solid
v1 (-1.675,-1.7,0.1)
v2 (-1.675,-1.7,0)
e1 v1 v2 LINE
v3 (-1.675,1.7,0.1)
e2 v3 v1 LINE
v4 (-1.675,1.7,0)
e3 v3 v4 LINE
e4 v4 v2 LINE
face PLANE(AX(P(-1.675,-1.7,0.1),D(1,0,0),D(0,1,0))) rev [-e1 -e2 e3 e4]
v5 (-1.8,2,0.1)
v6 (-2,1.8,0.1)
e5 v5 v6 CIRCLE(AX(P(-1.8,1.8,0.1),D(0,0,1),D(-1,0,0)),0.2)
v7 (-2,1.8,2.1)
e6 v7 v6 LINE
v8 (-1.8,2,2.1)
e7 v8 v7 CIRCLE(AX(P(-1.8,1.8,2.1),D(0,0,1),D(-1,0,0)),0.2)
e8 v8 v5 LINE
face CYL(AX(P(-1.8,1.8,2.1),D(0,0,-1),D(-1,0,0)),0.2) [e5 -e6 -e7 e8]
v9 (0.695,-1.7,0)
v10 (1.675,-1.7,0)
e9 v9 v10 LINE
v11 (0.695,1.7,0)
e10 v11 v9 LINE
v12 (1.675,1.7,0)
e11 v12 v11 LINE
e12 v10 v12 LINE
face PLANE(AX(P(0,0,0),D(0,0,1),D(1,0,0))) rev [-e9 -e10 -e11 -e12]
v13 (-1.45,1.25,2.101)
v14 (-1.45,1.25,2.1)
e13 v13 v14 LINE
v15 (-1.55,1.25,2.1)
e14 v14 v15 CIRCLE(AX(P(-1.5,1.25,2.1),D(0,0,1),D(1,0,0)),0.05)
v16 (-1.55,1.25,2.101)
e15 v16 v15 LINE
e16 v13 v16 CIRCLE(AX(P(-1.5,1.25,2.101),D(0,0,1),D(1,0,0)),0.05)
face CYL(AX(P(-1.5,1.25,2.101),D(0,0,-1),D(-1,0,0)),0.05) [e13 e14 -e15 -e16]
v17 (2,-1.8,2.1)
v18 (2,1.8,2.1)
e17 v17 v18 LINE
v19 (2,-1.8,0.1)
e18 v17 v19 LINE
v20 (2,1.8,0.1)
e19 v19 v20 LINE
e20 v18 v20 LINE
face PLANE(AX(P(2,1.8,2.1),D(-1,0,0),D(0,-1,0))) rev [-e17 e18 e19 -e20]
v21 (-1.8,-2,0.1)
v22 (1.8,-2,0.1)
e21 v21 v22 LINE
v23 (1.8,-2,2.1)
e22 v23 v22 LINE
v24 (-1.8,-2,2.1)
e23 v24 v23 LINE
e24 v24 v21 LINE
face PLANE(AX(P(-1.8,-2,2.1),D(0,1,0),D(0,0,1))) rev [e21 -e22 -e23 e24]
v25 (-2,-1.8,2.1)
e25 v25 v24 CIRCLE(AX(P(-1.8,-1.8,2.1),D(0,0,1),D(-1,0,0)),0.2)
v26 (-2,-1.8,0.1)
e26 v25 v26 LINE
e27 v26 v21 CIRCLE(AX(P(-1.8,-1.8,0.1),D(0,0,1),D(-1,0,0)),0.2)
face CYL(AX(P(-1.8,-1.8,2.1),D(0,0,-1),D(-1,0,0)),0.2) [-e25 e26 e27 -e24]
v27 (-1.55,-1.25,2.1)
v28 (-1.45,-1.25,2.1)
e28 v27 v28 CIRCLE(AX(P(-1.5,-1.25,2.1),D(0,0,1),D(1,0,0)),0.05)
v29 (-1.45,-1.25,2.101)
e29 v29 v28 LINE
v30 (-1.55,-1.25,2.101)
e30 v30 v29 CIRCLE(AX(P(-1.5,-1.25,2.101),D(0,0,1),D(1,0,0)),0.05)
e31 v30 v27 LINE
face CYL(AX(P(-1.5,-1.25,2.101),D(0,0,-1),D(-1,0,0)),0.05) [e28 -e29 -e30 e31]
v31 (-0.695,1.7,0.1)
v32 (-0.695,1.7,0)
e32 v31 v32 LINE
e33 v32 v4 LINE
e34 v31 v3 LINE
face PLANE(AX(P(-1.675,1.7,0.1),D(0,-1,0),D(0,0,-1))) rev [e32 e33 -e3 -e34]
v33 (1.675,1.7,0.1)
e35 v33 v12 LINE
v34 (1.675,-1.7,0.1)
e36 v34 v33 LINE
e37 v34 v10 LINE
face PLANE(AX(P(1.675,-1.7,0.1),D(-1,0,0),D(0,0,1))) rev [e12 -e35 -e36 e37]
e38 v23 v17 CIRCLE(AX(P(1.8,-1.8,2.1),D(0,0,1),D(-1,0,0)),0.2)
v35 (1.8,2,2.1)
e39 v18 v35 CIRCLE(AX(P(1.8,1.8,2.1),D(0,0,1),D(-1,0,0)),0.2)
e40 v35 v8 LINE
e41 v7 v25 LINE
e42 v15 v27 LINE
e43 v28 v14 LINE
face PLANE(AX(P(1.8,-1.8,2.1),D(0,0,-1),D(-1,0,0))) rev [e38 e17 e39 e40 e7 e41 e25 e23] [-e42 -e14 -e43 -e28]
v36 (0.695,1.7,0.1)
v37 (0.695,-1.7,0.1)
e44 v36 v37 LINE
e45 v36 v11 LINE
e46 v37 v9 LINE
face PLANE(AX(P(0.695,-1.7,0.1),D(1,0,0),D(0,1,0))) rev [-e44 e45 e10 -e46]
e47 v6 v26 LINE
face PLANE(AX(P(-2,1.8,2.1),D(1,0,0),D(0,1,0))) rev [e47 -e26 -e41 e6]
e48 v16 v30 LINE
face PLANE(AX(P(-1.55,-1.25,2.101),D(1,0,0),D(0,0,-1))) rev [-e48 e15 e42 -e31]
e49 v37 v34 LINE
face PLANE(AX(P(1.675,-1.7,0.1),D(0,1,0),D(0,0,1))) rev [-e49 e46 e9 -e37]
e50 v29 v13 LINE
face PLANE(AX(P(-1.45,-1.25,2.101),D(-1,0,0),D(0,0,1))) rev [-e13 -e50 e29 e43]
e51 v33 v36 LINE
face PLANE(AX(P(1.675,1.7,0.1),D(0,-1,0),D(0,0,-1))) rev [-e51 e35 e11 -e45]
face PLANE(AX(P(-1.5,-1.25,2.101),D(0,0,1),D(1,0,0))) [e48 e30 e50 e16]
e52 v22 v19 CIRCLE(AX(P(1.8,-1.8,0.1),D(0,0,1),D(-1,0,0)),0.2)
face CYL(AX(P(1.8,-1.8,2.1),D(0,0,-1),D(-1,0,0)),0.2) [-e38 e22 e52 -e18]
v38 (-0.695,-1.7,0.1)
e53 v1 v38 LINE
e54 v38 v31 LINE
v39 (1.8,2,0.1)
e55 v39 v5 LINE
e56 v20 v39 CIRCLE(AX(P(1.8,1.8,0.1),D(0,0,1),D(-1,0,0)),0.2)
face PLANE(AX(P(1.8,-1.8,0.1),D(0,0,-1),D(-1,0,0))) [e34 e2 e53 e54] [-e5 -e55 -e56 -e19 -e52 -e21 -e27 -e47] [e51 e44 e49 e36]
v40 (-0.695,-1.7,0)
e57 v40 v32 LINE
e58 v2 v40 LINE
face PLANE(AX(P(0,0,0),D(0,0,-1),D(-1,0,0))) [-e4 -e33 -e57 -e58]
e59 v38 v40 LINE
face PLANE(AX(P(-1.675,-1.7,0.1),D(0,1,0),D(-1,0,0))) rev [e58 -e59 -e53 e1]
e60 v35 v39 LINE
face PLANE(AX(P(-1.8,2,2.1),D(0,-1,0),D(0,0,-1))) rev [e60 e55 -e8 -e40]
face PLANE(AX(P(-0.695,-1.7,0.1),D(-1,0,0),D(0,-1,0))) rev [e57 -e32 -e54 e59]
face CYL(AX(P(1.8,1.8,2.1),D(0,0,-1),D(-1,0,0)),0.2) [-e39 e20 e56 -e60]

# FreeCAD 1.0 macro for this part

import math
import FreeCAD as App
import Part
import Sketcher

V = App.Vector
Q = App.Units.Quantity

doc = App.newDocument("Part")
params = doc.addObject("Spreadsheet::Sheet", "Params")
for row, (alias, value) in enumerate([
    ("sketch1_height", "3.4 mm"),
    ("sketch1_width", "0.98 mm"),
    ("pad1_length", "0.1 mm"),
    ("sketch2_height", "3.4 mm"),
    ("sketch2_width", "0.98 mm"),
    ("pad2_length", "0.1 mm"),
    ("sketch3_radius", "0.2 mm"),
    ("sketch3_width", "3.6 mm"),
    ("pad3_length", "2 mm"),
    ("sketch4_radius", "0.05 mm"),
    ("sketch4_height", "2.5 mm"),
    ("pad4_length", "0.001 mm"),
], start=1):
    params.set(f"A{row}", alias)
    params.set(f"B{row}", "=" + value)
    params.setAlias(f"B{row}", alias)

body = doc.addObject("PartDesign::Body", "Body")

# Sketch on XY plane
sketch1 = body.newObject("Sketcher::SketchObject", "Sketch")
sketch1.AttachmentSupport = (doc.getObject("XY_Plane"), [""])
sketch1.MapMode = "FlatFace"
sketch1.addGeometry(Part.LineSegment(V(-1.675, 1.7, 0), V(-1.675, -1.7, 0)), False)
sketch1.addGeometry(Part.LineSegment(V(-1.675, -1.7, 0), V(-0.695, -1.7, 0)), False)
sketch1.addGeometry(Part.LineSegment(V(-0.695, -1.7, 0), V(-0.695, 1.7, 0)), False)
sketch1.addGeometry(Part.LineSegment(V(-0.695, 1.7, 0), V(-1.675, 1.7, 0)), False)
sketch1.addConstraint(Sketcher.Constraint("Coincident", 0, 2, 1, 1))
sketch1.addConstraint(Sketcher.Constraint("Coincident", 1, 2, 2, 1))
sketch1.addConstraint(Sketcher.Constraint("Coincident", 2, 2, 3, 1))
sketch1.addConstraint(Sketcher.Constraint("Coincident", 3, 2, 0, 1))
sketch1.addConstraint(Sketcher.Constraint("Vertical", 0))
sketch1.addConstraint(Sketcher.Constraint("Horizontal", 1))
sketch1.addConstraint(Sketcher.Constraint("Vertical", 2))
sketch1.addConstraint(Sketcher.Constraint("Horizontal", 3))
sketch1.addConstraint(Sketcher.Constraint("DistanceY", 0, 2, 0, 1, Q("3.4 mm")))
sketch1.addConstraint(Sketcher.Constraint("DistanceX", 1, 1, 1, 2, Q("0.98 mm")))
sketch1.addConstraint(Sketcher.Constraint("DistanceY", 0, 2, -1, 1, Q("1.7 mm")))
sketch1.addConstraint(Sketcher.Constraint("DistanceX", 0, 2, -1, 1, Q("1.675 mm")))
sketch1.setExpression("Constraints[8]", "Params.sketch1_height")
sketch1.setExpression("Constraints[9]", "Params.sketch1_width")
pad1 = body.newObject("PartDesign::Pad", "Pad")
pad1.Profile = sketch1
pad1.setExpression("Length", "Params.pad1_length")
body2 = doc.addObject("PartDesign::Body", "Body001")

# Sketch on XY plane
sketch2 = body2.newObject("Sketcher::SketchObject", "Sketch001")
sketch2.AttachmentSupport = (doc.getObject("XY_Plane001"), [""])
sketch2.MapMode = "FlatFace"
sketch2.addGeometry(Part.LineSegment(V(0.695, 1.7, 0), V(0.695, -1.7, 0)), False)
sketch2.addGeometry(Part.LineSegment(V(0.695, -1.7, 0), V(1.675, -1.7, 0)), False)
sketch2.addGeometry(Part.LineSegment(V(1.675, -1.7, 0), V(1.675, 1.7, 0)), False)
sketch2.addGeometry(Part.LineSegment(V(1.675, 1.7, 0), V(0.695, 1.7, 0)), False)
sketch2.addConstraint(Sketcher.Constraint("Coincident", 0, 2, 1, 1))
sketch2.addConstraint(Sketcher.Constraint("Coincident", 1, 2, 2, 1))
sketch2.addConstraint(Sketcher.Constraint("Coincident", 2, 2, 3, 1))
sketch2.addConstraint(Sketcher.Constraint("Coincident", 3, 2, 0, 1))
sketch2.addConstraint(Sketcher.Constraint("Vertical", 0))
sketch2.addConstraint(Sketcher.Constraint("Horizontal", 1))
sketch2.addConstraint(Sketcher.Constraint("Vertical", 2))
sketch2.addConstraint(Sketcher.Constraint("Horizontal", 3))
sketch2.addConstraint(Sketcher.Constraint("DistanceY", 0, 2, 0, 1, Q("3.4 mm")))
sketch2.addConstraint(Sketcher.Constraint("DistanceX", 1, 1, 1, 2, Q("0.98 mm")))
sketch2.addConstraint(Sketcher.Constraint("DistanceY", 0, 2, -1, 1, Q("1.7 mm")))
sketch2.addConstraint(Sketcher.Constraint("DistanceX", -1, 1, 0, 2, Q("0.695 mm")))
sketch2.setExpression("Constraints[8]", "Params.sketch2_height")
sketch2.setExpression("Constraints[9]", "Params.sketch2_width")
pad2 = body2.newObject("PartDesign::Pad", "Pad001")
pad2.Profile = sketch2
pad2.setExpression("Length", "Params.pad2_length")
body.AllowCompound = True
doc.recompute()

boolean = body.newObject("PartDesign::Boolean", "Boolean")
boolean.Type = "Fuse"
boolean.addObjects([body2])

# Sketch on XY plane
sketch3 = body.newObject("Sketcher::SketchObject", "Sketch002")
sketch3.AttachmentSupport = (doc.getObject("XY_Plane"), [""])
sketch3.MapMode = "FlatFace"
sketch3.AttachmentOffset = App.Placement(V(0, 0, 0.1), App.Rotation())
sketch3.addGeometry(Part.LineSegment(V(1.8, 2, 0), V(-1.8, 2, 0)), False)
sketch3.addGeometry(Part.ArcOfCircle(Part.Circle(V(-1.8, 1.8, 0), V(0, 0, 1), 0.2), math.radians(90), math.radians(180)), False)
sketch3.addGeometry(Part.LineSegment(V(-2, 1.8, 0), V(-2, -1.8, 0)), False)
sketch3.addGeometry(Part.ArcOfCircle(Part.Circle(V(-1.8, -1.8, 0), V(0, 0, 1), 0.2), math.radians(-180), math.radians(-90)), False)
sketch3.addGeometry(Part.LineSegment(V(-1.8, -2, 0), V(1.8, -2, 0)), False)
sketch3.addGeometry(Part.ArcOfCircle(Part.Circle(V(1.8, -1.8, 0), V(0, 0, 1), 0.2), math.radians(-90), math.radians(0)), False)
sketch3.addGeometry(Part.LineSegment(V(2, -1.8, 0), V(2, 1.8, 0)), False)
sketch3.addGeometry(Part.ArcOfCircle(Part.Circle(V(1.8, 1.8, 0), V(0, 0, 1), 0.2), math.radians(0), math.radians(90)), False)
sketch3.addConstraint(Sketcher.Constraint("Tangent", 0, 2, 1, 1))
sketch3.addConstraint(Sketcher.Constraint("Tangent", 1, 2, 2, 1))
sketch3.addConstraint(Sketcher.Constraint("Tangent", 2, 2, 3, 1))
sketch3.addConstraint(Sketcher.Constraint("Tangent", 3, 2, 4, 1))
sketch3.addConstraint(Sketcher.Constraint("Tangent", 4, 2, 5, 1))
sketch3.addConstraint(Sketcher.Constraint("Tangent", 5, 2, 6, 1))
sketch3.addConstraint(Sketcher.Constraint("Tangent", 6, 2, 7, 1))
sketch3.addConstraint(Sketcher.Constraint("Tangent", 7, 2, 0, 1))
sketch3.addConstraint(Sketcher.Constraint("Horizontal", 0))
sketch3.addConstraint(Sketcher.Constraint("Vertical", 2))
sketch3.addConstraint(Sketcher.Constraint("Horizontal", 4))
sketch3.addConstraint(Sketcher.Constraint("Vertical", 6))
sketch3.addConstraint(Sketcher.Constraint("Equal", 1, 3))
sketch3.addConstraint(Sketcher.Constraint("Equal", 3, 5))
sketch3.addConstraint(Sketcher.Constraint("Equal", 5, 7))
sketch3.addConstraint(Sketcher.Constraint("Symmetric", 1, 3, 5, 3, -1, 1))
sketch3.addConstraint(Sketcher.Constraint("Equal", 4, 2))
sketch3.addConstraint(Sketcher.Constraint("Radius", 1, Q("0.2 mm")))
sketch3.addConstraint(Sketcher.Constraint("DistanceX", 0, 2, 0, 1, Q("3.6 mm")))
sketch3.setExpression("Constraints[17]", "Params.sketch3_radius")
sketch3.setExpression("Constraints[18]", "Params.sketch3_width")
pad3 = body.newObject("PartDesign::Pad", "Pad002")
pad3.Profile = sketch3
pad3.setExpression("Length", "Params.pad3_length")

# Sketch on XY plane
sketch4 = body.newObject("Sketcher::SketchObject", "Sketch003")
sketch4.AttachmentSupport = (doc.getObject("XY_Plane"), [""])
sketch4.MapMode = "FlatFace"
sketch4.AttachmentOffset = App.Placement(V(0, 0, 2.1), App.Rotation())
sketch4.addGeometry(Part.LineSegment(V(-1.55, 1.25, 0), V(-1.55, -1.25, 0)), False)
sketch4.addGeometry(Part.ArcOfCircle(Part.Circle(V(-1.5, -1.25, 0), V(0, 0, 1), 0.05), math.radians(180), math.radians(360)), False)
sketch4.addGeometry(Part.LineSegment(V(-1.45, -1.25, 0), V(-1.45, 1.25, 0)), False)
sketch4.addGeometry(Part.ArcOfCircle(Part.Circle(V(-1.5, 1.25, 0), V(0, 0, 1), 0.05), math.radians(0), math.radians(180)), False)
sketch4.addConstraint(Sketcher.Constraint("Tangent", 0, 2, 1, 1))
sketch4.addConstraint(Sketcher.Constraint("Tangent", 1, 2, 2, 1))
sketch4.addConstraint(Sketcher.Constraint("Tangent", 2, 2, 3, 1))
sketch4.addConstraint(Sketcher.Constraint("Tangent", 3, 2, 0, 1))
sketch4.addConstraint(Sketcher.Constraint("Vertical", 0))
sketch4.addConstraint(Sketcher.Constraint("Vertical", 2))
sketch4.addConstraint(Sketcher.Constraint("Radius", 1, Q("0.05 mm")))
sketch4.addConstraint(Sketcher.Constraint("DistanceY", 0, 2, 0, 1, Q("2.5 mm")))
sketch4.addConstraint(Sketcher.Constraint("DistanceX", 1, 3, -1, 1, Q("1.5 mm")))
sketch4.addConstraint(Sketcher.Constraint("DistanceY", 1, 3, -1, 1, Q("1.25 mm")))
sketch4.setExpression("Constraints[6]", "Params.sketch4_radius")
sketch4.setExpression("Constraints[7]", "Params.sketch4_height")
pad4 = body.newObject("PartDesign::Pad", "Pad003")
pad4.Profile = sketch4
pad4.setExpression("Length", "Params.pad4_length")

doc.recompute()
